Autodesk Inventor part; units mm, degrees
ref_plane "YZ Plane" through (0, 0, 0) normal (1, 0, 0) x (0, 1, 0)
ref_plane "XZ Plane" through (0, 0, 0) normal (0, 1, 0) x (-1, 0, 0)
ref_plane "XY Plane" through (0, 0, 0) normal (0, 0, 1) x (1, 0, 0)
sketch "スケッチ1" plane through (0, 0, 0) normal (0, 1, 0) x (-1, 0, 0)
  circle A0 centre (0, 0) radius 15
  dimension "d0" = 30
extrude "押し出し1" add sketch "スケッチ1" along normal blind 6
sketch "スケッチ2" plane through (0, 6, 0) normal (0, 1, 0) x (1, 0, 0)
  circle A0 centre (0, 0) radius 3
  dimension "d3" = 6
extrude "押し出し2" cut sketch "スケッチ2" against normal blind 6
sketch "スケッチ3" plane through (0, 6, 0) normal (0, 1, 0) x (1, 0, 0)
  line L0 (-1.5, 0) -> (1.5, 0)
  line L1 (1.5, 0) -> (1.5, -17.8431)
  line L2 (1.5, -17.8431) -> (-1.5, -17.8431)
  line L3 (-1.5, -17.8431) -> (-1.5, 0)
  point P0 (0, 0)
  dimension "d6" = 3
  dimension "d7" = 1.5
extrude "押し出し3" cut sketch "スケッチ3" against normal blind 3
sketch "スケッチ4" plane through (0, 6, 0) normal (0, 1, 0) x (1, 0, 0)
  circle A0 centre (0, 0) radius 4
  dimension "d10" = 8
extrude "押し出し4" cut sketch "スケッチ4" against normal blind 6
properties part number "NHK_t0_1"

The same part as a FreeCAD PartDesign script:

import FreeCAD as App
import Part
import Sketcher
from FreeCAD import Vector
Q = App.Units.Quantity


def add_polygon(sketch, points):
    """Adds a closed chain of lines whose ends are joined by coincident constraints."""
    first, n = sketch.GeometryCount, len(points)
    for a, b in zip(points, points[1:] + points[:1]):
        sketch.addGeometry(Part.LineSegment(App.Vector(*a, 0), App.Vector(*b, 0)), False)
    for i in range(n):
        sketch.addConstraint(Sketcher.Constraint("Coincident", first + i, 2, first + (i + 1) % n, 1))

doc = App.newDocument("Part")
body = doc.addObject("PartDesign::Body", "Body")

sketch1 = doc.addObject("Sketcher::SketchObject", "Sketch")
body.addObject(sketch1)
sketch1.AttachmentSupport = (doc.XZ_Plane, [""])
sketch1.MapMode = "FlatFace"
sketch1.addGeometry(Part.Circle(Vector(0, 0, 0), Vector(0, 0, 1), 15), False)
sketch1.addConstraint([
    Sketcher.Constraint("Coincident", 0, 3, -1, 1),
    Sketcher.Constraint("Diameter", 0, Q("30 mm")),
])
pad1 = doc.addObject("PartDesign::Pad", "Pad")
body.addObject(pad1)
pad1.Profile = sketch1
pad1.Length = 6
pad1.Reversed = True

sketch2 = doc.addObject("Sketcher::SketchObject", "Sketch001")
body.addObject(sketch2)
sketch2.AttachmentSupport = (doc.XZ_Plane, [""])
sketch2.MapMode = "FlatFace"
sketch2.AttachmentOffset = App.Placement(Vector(0, 0, -6), App.Rotation())
sketch2.addGeometry(Part.Circle(Vector(0, 0, 0), Vector(0, 0, 1), 3), False)
sketch2.addConstraint([
    Sketcher.Constraint("Coincident", 0, 3, -1, 1),
    Sketcher.Constraint("Diameter", 0, Q("6 mm")),
])
pocket1 = doc.addObject("PartDesign::Pocket", "Pocket")
body.addObject(pocket1)
pocket1.Profile = sketch2
pocket1.Length = 6
pocket1.Reversed = True

sketch3 = doc.addObject("Sketcher::SketchObject", "Sketch002")
body.addObject(sketch3)
sketch3.AttachmentSupport = (doc.XZ_Plane, [""])
sketch3.MapMode = "FlatFace"
sketch3.AttachmentOffset = App.Placement(Vector(0, 0, -6), App.Rotation())
add_polygon(sketch3, [(1.5, 0), (-1.5, 0), (-1.5, 17.8431), (1.5, 17.8431)])
sketch3.addConstraint([
    Sketcher.Constraint("Horizontal", 0),
    Sketcher.Constraint("Vertical", 1),
    Sketcher.Constraint("Horizontal", 2),
    Sketcher.Constraint("Vertical", 3),
    Sketcher.Constraint("Symmetric", 0, 2, 3, 2, -1, 1),
    Sketcher.Constraint("DistanceX", 0, 2, 0, 1, Q("3 mm")),
    Sketcher.Constraint("DistanceY", 1, 1, 1, 2, Q("17.843 mm")),
])
pocket2 = doc.addObject("PartDesign::Pocket", "Pocket001")
body.addObject(pocket2)
pocket2.Profile = sketch3
pocket2.Length = 3
pocket2.Reversed = True

sketch4 = doc.addObject("Sketcher::SketchObject", "Sketch003")
body.addObject(sketch4)
sketch4.AttachmentSupport = (doc.XZ_Plane, [""])
sketch4.MapMode = "FlatFace"
sketch4.AttachmentOffset = App.Placement(Vector(0, 0, -6), App.Rotation())
sketch4.addGeometry(Part.Circle(Vector(0, 0, 0), Vector(0, 0, 1), 4), False)
sketch4.addConstraint([
    Sketcher.Constraint("Coincident", 0, 3, -1, 1),
    Sketcher.Constraint("Diameter", 0, Q("8 mm")),
])
pocket3 = doc.addObject("PartDesign::Pocket", "Pocket002")
body.addObject(pocket3)
pocket3.Profile = sketch4
pocket3.Length = 6
pocket3.Reversed = True

doc.recompute()
